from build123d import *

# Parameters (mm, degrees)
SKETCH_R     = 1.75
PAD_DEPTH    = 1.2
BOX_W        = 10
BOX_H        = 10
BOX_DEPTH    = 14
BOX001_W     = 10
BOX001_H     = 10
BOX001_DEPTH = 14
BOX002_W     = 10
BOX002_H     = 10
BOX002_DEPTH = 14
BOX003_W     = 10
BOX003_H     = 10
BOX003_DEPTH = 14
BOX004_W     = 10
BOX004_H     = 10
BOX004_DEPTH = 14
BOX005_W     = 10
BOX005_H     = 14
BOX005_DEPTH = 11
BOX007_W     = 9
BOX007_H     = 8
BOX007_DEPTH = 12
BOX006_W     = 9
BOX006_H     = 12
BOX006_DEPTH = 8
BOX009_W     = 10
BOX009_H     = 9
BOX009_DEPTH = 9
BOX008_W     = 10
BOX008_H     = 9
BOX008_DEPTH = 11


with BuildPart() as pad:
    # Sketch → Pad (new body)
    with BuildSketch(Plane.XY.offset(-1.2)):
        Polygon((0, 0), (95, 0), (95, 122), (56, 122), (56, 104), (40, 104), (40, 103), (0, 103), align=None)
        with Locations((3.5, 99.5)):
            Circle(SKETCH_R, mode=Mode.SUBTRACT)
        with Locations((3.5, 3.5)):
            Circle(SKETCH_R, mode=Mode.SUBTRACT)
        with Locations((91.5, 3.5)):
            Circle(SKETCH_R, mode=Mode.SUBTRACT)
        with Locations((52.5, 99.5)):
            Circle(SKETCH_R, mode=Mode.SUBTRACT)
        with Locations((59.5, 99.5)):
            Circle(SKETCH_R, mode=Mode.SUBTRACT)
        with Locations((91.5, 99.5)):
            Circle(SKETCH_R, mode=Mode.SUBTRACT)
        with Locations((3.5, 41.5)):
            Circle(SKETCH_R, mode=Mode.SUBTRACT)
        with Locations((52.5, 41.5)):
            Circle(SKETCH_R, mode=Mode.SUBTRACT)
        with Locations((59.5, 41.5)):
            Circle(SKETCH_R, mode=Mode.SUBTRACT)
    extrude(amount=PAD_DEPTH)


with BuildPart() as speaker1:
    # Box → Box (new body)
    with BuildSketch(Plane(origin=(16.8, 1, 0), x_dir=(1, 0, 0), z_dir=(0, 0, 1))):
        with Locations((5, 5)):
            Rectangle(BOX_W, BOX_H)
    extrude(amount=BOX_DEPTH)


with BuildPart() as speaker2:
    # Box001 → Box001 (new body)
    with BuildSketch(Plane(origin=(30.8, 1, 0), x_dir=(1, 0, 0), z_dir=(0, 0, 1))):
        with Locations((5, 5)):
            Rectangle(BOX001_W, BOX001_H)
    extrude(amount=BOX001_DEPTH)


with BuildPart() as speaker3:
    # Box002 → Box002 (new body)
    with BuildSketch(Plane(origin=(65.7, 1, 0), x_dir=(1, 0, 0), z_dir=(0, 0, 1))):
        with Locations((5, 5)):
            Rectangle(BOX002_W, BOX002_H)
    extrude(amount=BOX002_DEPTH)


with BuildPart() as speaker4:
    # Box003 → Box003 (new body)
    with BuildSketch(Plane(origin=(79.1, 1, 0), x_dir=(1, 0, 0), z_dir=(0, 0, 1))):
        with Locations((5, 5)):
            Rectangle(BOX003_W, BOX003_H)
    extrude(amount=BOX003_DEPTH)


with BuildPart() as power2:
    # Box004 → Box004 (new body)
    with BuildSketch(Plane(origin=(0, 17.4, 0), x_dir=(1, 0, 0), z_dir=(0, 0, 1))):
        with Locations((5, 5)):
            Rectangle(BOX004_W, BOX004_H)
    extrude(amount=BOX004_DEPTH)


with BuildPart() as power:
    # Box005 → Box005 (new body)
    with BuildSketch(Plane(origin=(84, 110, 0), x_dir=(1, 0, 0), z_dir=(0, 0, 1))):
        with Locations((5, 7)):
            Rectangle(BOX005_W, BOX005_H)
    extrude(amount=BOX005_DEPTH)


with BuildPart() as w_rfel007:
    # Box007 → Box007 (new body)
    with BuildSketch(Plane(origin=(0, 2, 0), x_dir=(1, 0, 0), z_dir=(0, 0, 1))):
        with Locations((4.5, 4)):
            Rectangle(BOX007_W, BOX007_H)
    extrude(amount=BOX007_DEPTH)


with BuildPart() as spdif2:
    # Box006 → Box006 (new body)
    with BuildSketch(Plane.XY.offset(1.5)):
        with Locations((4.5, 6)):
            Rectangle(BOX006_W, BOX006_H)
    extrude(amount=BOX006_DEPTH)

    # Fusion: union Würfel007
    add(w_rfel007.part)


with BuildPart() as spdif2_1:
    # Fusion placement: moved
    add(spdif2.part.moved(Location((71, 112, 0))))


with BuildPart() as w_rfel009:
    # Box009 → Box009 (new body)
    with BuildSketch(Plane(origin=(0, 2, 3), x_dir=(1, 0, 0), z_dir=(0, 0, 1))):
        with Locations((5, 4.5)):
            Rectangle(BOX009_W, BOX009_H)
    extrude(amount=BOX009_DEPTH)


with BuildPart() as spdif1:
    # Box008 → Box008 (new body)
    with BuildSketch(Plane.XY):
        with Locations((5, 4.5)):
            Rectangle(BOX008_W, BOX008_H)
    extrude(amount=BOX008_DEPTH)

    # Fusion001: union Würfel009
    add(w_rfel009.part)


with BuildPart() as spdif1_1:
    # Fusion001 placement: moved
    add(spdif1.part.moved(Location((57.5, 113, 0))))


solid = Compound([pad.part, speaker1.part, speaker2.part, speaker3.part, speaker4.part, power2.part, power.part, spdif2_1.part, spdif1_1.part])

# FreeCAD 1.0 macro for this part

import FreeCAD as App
import Part
import Sketcher

V = App.Vector
Q = App.Units.Quantity


def add_polygon(sketch, points):
    """Adds a closed chain of lines whose ends are joined by coincident constraints."""
    first, n = sketch.GeometryCount, len(points)
    for a, b in zip(points, points[1:] + points[:1]):
        sketch.addGeometry(Part.LineSegment(App.Vector(*a, 0), App.Vector(*b, 0)), False)
    for i in range(n):
        sketch.addConstraint(Sketcher.Constraint("Coincident", first + i, 2, first + (i + 1) % n, 1))

doc = App.newDocument("Part")
body = doc.addObject("PartDesign::Body", "Body")

# Sketch on XY plane
sketch1 = body.newObject("Sketcher::SketchObject", "Sketch")
sketch1.AttachmentSupport = (doc.getObject("XY_Plane"), [""])
sketch1.MapMode = "FlatFace"
sketch1.AttachmentOffset = App.Placement(V(0, 0, -1.2), App.Rotation())
add_polygon(sketch1, [(0, 0), (95, 0), (95, 122), (56, 122), (56, 104), (40, 104), (40, 103), (0, 103)])  # lines 0-7
sketch1.addGeometry(Part.Circle(V(3.5, 3.5, 0), V(0, 0, 1), 1.75), False)  # 8
sketch1.addGeometry(Part.Circle(V(3.5, 41.5, 0), V(0, 0, 1), 1.75), False)  # 9
sketch1.addGeometry(Part.Circle(V(91.5, 3.5, 0), V(0, 0, 1), 1.75), False)  # 10
sketch1.addGeometry(Part.Circle(V(52.5, 41.5, 0), V(0, 0, 1), 1.75), False)  # 11
sketch1.addGeometry(Part.Circle(V(59.5, 41.5, 0), V(0, 0, 1), 1.75), False)  # 12
sketch1.addGeometry(Part.Circle(V(3.5, 99.5, 0), V(0, 0, 1), 1.75), False)  # 13
sketch1.addGeometry(Part.Circle(V(52.5, 99.5, 0), V(0, 0, 1), 1.75), False)  # 14
sketch1.addGeometry(Part.Circle(V(59.5, 99.5, 0), V(0, 0, 1), 1.75), False)  # 15
sketch1.addGeometry(Part.Circle(V(91.5, 99.5, 0), V(0, 0, 1), 1.75), False)  # 16
sketch1.addConstraint([
    Sketcher.Constraint("Horizontal", 0),
    Sketcher.Constraint("Vertical", 1),
    Sketcher.Constraint("Horizontal", 2),
    Sketcher.Constraint("Vertical", 3),
    Sketcher.Constraint("Horizontal", 4),
    Sketcher.Constraint("Vertical", 5),
    Sketcher.Constraint("Horizontal", 6),
    Sketcher.Constraint("Vertical", 7),
    Sketcher.Constraint("Coincident", 7, 2, -1, 1),
    Sketcher.Constraint("Equal", 8, 9),
    Sketcher.Constraint("Equal", 9, 10),
    Sketcher.Constraint("Equal", 10, 11),
    Sketcher.Constraint("Equal", 11, 12),
    Sketcher.Constraint("Equal", 12, 13),
    Sketcher.Constraint("Equal", 13, 14),
    Sketcher.Constraint("Equal", 14, 15),
    Sketcher.Constraint("Equal", 15, 16),
    Sketcher.Constraint("Horizontal", 8, 3, 10, 3),
    Sketcher.Constraint("Horizontal", 9, 3, 11, 3),
    Sketcher.Constraint("Horizontal", 11, 3, 12, 3),
    Sketcher.Constraint("Horizontal", 13, 3, 14, 3),
    Sketcher.Constraint("Horizontal", 14, 3, 15, 3),
    Sketcher.Constraint("Horizontal", 15, 3, 16, 3),
    Sketcher.Constraint("Vertical", 8, 3, 9, 3),
    Sketcher.Constraint("Vertical", 9, 3, 13, 3),
    Sketcher.Constraint("Vertical", 11, 3, 14, 3),
    Sketcher.Constraint("Vertical", 12, 3, 15, 3),
    Sketcher.Constraint("Vertical", 10, 3, 16, 3),
    Sketcher.Constraint("Diameter", 8, Q("3.5 mm")),
    Sketcher.Constraint("DistanceX", 0, 1, 0, 2, Q("95 mm")),
    Sketcher.Constraint("DistanceX", 2, 2, 2, 1, Q("39 mm")),
    Sketcher.Constraint("DistanceX", 4, 2, 4, 1, Q("16 mm")),
    Sketcher.Constraint("DistanceY", 1, 1, 1, 2, Q("122 mm")),
    Sketcher.Constraint("DistanceY", 3, 2, 3, 1, Q("18 mm")),
    Sketcher.Constraint("DistanceY", 5, 2, 5, 1, Q("1 mm")),
    Sketcher.Constraint("DistanceY", 8, 3, 9, 3, Q("38 mm")),
    Sketcher.Constraint("DistanceX", 8, 3, 10, 3, Q("88 mm")),
    Sketcher.Constraint("DistanceX", 9, 3, 11, 3, Q("49 mm")),
    Sketcher.Constraint("DistanceX", 11, 3, 12, 3, Q("7 mm")),
    Sketcher.Constraint("DistanceY", 9, 3, 13, 3, Q("58 mm")),
    Sketcher.Constraint("DistanceX", -1, 1, 8, 3, Q("3.5 mm")),
    Sketcher.Constraint("DistanceY", -1, 1, 8, 3, Q("3.5 mm")),
])
pad1 = body.newObject("PartDesign::Pad", "Pad")
pad1.Profile = sketch1
pad1.Length = 1.2
body2 = doc.addObject("PartDesign::Body", "Body001")

# Sketch on XY plane
sketch2 = body2.newObject("Sketcher::SketchObject", "Sketch001")
sketch2.AttachmentSupport = (doc.getObject("XY_Plane001"), [""])
sketch2.MapMode = "FlatFace"
add_polygon(sketch2, [(16.8, 11), (16.8, 1), (26.8, 1), (26.8, 11)])  # lines 0-3
sketch2.addConstraint([
    Sketcher.Constraint("Vertical", 0),
    Sketcher.Constraint("Horizontal", 1),
    Sketcher.Constraint("Vertical", 2),
    Sketcher.Constraint("Horizontal", 3),
    Sketcher.Constraint("Equal", 3, 0),
    Sketcher.Constraint("DistanceX", 1, 1, 1, 2, Q("10 mm")),
    Sketcher.Constraint("DistanceY", -1, 1, 0, 2, Q("1 mm")),
    Sketcher.Constraint("DistanceX", -1, 1, 0, 2, Q("16.8 mm")),
])
pad2 = body2.newObject("PartDesign::Pad", "Pad001")
pad2.Profile = sketch2
pad2.Length = 14
body3 = doc.addObject("PartDesign::Body", "Body002")

# Sketch on XY plane
sketch3 = body3.newObject("Sketcher::SketchObject", "Sketch002")
sketch3.AttachmentSupport = (doc.getObject("XY_Plane002"), [""])
sketch3.MapMode = "FlatFace"
add_polygon(sketch3, [(30.8, 11), (30.8, 1), (40.8, 1), (40.8, 11)])  # lines 0-3
sketch3.addConstraint([
    Sketcher.Constraint("Vertical", 0),
    Sketcher.Constraint("Horizontal", 1),
    Sketcher.Constraint("Vertical", 2),
    Sketcher.Constraint("Horizontal", 3),
    Sketcher.Constraint("Equal", 3, 0),
    Sketcher.Constraint("DistanceX", 1, 1, 1, 2, Q("10 mm")),
    Sketcher.Constraint("DistanceY", -1, 1, 0, 2, Q("1 mm")),
    Sketcher.Constraint("DistanceX", -1, 1, 0, 2, Q("30.8 mm")),
])
pad3 = body3.newObject("PartDesign::Pad", "Pad002")
pad3.Profile = sketch3
pad3.Length = 14
body4 = doc.addObject("PartDesign::Body", "Body003")

# Sketch on XY plane
sketch4 = body4.newObject("Sketcher::SketchObject", "Sketch003")
sketch4.AttachmentSupport = (doc.getObject("XY_Plane003"), [""])
sketch4.MapMode = "FlatFace"
add_polygon(sketch4, [(65.7, 11), (65.7, 1), (75.7, 1), (75.7, 11)])  # lines 0-3
sketch4.addConstraint([
    Sketcher.Constraint("Vertical", 0),
    Sketcher.Constraint("Horizontal", 1),
    Sketcher.Constraint("Vertical", 2),
    Sketcher.Constraint("Horizontal", 3),
    Sketcher.Constraint("Equal", 3, 0),
    Sketcher.Constraint("DistanceX", 1, 1, 1, 2, Q("10 mm")),
    Sketcher.Constraint("DistanceY", -1, 1, 0, 2, Q("1 mm")),
    Sketcher.Constraint("DistanceX", -1, 1, 0, 2, Q("65.7 mm")),
])
pad4 = body4.newObject("PartDesign::Pad", "Pad003")
pad4.Profile = sketch4
pad4.Length = 14
body5 = doc.addObject("PartDesign::Body", "Body004")

# Sketch on XY plane
sketch5 = body5.newObject("Sketcher::SketchObject", "Sketch004")
sketch5.AttachmentSupport = (doc.getObject("XY_Plane004"), [""])
sketch5.MapMode = "FlatFace"
add_polygon(sketch5, [(79.1, 11), (79.1, 1), (89.1, 1), (89.1, 11)])  # lines 0-3
sketch5.addConstraint([
    Sketcher.Constraint("Vertical", 0),
    Sketcher.Constraint("Horizontal", 1),
    Sketcher.Constraint("Vertical", 2),
    Sketcher.Constraint("Horizontal", 3),
    Sketcher.Constraint("Equal", 3, 0),
    Sketcher.Constraint("DistanceX", 1, 1, 1, 2, Q("10 mm")),
    Sketcher.Constraint("DistanceY", -1, 1, 0, 2, Q("1 mm")),
    Sketcher.Constraint("DistanceX", -1, 1, 0, 2, Q("79.1 mm")),
])
pad5 = body5.newObject("PartDesign::Pad", "Pad004")
pad5.Profile = sketch5
pad5.Length = 14
body6 = doc.addObject("PartDesign::Body", "Body005")

# Sketch on XY plane
sketch6 = body6.newObject("Sketcher::SketchObject", "Sketch005")
sketch6.AttachmentSupport = (doc.getObject("XY_Plane005"), [""])
sketch6.MapMode = "FlatFace"
add_polygon(sketch6, [(0, 27.4), (0, 17.4), (10, 17.4), (10, 27.4)])  # lines 0-3
sketch6.addConstraint([
    Sketcher.Constraint("Vertical", 0),
    Sketcher.Constraint("Horizontal", 1),
    Sketcher.Constraint("Vertical", 2),
    Sketcher.Constraint("Horizontal", 3),
    Sketcher.Constraint("PointOnObject", 0, 2, -2),
    Sketcher.Constraint("Equal", 3, 0),
    Sketcher.Constraint("DistanceX", 1, 1, 1, 2, Q("10 mm")),
    Sketcher.Constraint("DistanceY", -1, 1, 0, 2, Q("17.4 mm")),
])
pad6 = body6.newObject("PartDesign::Pad", "Pad005")
pad6.Profile = sketch6
pad6.Length = 14
body7 = doc.addObject("PartDesign::Body", "Body006")

# Sketch on XY plane
sketch7 = body7.newObject("Sketcher::SketchObject", "Sketch006")
sketch7.AttachmentSupport = (doc.getObject("XY_Plane006"), [""])
sketch7.MapMode = "FlatFace"
add_polygon(sketch7, [(84, 124), (84, 110), (94, 110), (94, 124)])  # lines 0-3
sketch7.addConstraint([
    Sketcher.Constraint("Vertical", 0),
    Sketcher.Constraint("Horizontal", 1),
    Sketcher.Constraint("Vertical", 2),
    Sketcher.Constraint("Horizontal", 3),
    Sketcher.Constraint("DistanceX", 1, 1, 1, 2, Q("10 mm")),
    Sketcher.Constraint("DistanceY", 0, 2, 0, 1, Q("14 mm")),
    Sketcher.Constraint("DistanceX", -1, 1, 0, 2, Q("84 mm")),
    Sketcher.Constraint("DistanceY", -1, 1, 0, 2, Q("110 mm")),
])
pad7 = body7.newObject("PartDesign::Pad", "Pad006")
pad7.Profile = sketch7
pad7.Length = 11
body8 = doc.addObject("PartDesign::Body", "Body007")

# Sketch on XY plane
sketch8 = body8.newObject("Sketcher::SketchObject", "Sketch007")
sketch8.AttachmentSupport = (doc.getObject("XY_Plane007"), [""])
sketch8.MapMode = "FlatFace"
add_polygon(sketch8, [(0, 10), (0, 2), (9, 2), (9, 10)])  # lines 0-3
sketch8.addConstraint([
    Sketcher.Constraint("Vertical", 0),
    Sketcher.Constraint("Horizontal", 1),
    Sketcher.Constraint("Vertical", 2),
    Sketcher.Constraint("Horizontal", 3),
    Sketcher.Constraint("PointOnObject", 0, 2, -2),
    Sketcher.Constraint("DistanceX", 1, 1, 1, 2, Q("9 mm")),
    Sketcher.Constraint("DistanceY", 0, 2, 0, 1, Q("8 mm")),
    Sketcher.Constraint("DistanceY", -1, 1, 0, 2, Q("2 mm")),
])
pad8 = body8.newObject("PartDesign::Pad", "Pad007")
pad8.Profile = sketch8
pad8.Length = 12
body9 = doc.addObject("PartDesign::Body", "Body008")

# Sketch on XY plane
sketch9 = body9.newObject("Sketcher::SketchObject", "Sketch008")
sketch9.AttachmentSupport = (doc.getObject("XY_Plane008"), [""])
sketch9.MapMode = "FlatFace"
sketch9.AttachmentOffset = App.Placement(V(0, 0, 1.5), App.Rotation())
add_polygon(sketch9, [(0, 12), (0, 0), (9, 0), (9, 12)])  # lines 0-3
sketch9.addConstraint([
    Sketcher.Constraint("Vertical", 0),
    Sketcher.Constraint("Horizontal", 1),
    Sketcher.Constraint("Vertical", 2),
    Sketcher.Constraint("Horizontal", 3),
    Sketcher.Constraint("Coincident", 0, 2, -1, 1),
    Sketcher.Constraint("DistanceX", 1, 1, 1, 2, Q("9 mm")),
    Sketcher.Constraint("DistanceY", 0, 2, 0, 1, Q("12 mm")),
])
pad9 = body9.newObject("PartDesign::Pad", "Pad008")
pad9.Profile = sketch9
pad9.Length = 8
doc.recompute()

boolean = body9.newObject("PartDesign::Boolean", "Boolean")
boolean.Type = "Fuse"
boolean.addObjects([body8])
body10 = doc.addObject("PartDesign::Body", "Body009")
doc.recompute()

body9.Placement = App.Placement(V(71, 112, 0), App.Rotation(V(0, 0, 1), 0))
boolean2 = body10.newObject("PartDesign::Boolean", "Boolean001")
boolean2.Type = "Fuse"
boolean2.addObjects([body9])
body11 = doc.addObject("PartDesign::Body", "Body010")

# Sketch on XY plane
sketch10 = body11.newObject("Sketcher::SketchObject", "Sketch009")
sketch10.AttachmentSupport = (doc.getObject("XY_Plane010"), [""])
sketch10.MapMode = "FlatFace"
sketch10.AttachmentOffset = App.Placement(V(0, 0, 3), App.Rotation())
add_polygon(sketch10, [(0, 11), (0, 2), (10, 2), (10, 11)])  # lines 0-3
sketch10.addConstraint([
    Sketcher.Constraint("Vertical", 0),
    Sketcher.Constraint("Horizontal", 1),
    Sketcher.Constraint("Vertical", 2),
    Sketcher.Constraint("Horizontal", 3),
    Sketcher.Constraint("PointOnObject", 0, 2, -2),
    Sketcher.Constraint("DistanceX", 1, 1, 1, 2, Q("10 mm")),
    Sketcher.Constraint("DistanceY", 0, 2, 0, 1, Q("9 mm")),
    Sketcher.Constraint("DistanceY", -1, 1, 0, 2, Q("2 mm")),
])
pad10 = body11.newObject("PartDesign::Pad", "Pad009")
pad10.Profile = sketch10
pad10.Length = 9
body12 = doc.addObject("PartDesign::Body", "Body011")

# Sketch on XY plane
sketch11 = body12.newObject("Sketcher::SketchObject", "Sketch010")
sketch11.AttachmentSupport = (doc.getObject("XY_Plane011"), [""])
sketch11.MapMode = "FlatFace"
add_polygon(sketch11, [(0, 9), (0, 0), (10, 0), (10, 9)])  # lines 0-3
sketch11.addConstraint([
    Sketcher.Constraint("Vertical", 0),
    Sketcher.Constraint("Horizontal", 1),
    Sketcher.Constraint("Vertical", 2),
    Sketcher.Constraint("Horizontal", 3),
    Sketcher.Constraint("Coincident", 0, 2, -1, 1),
    Sketcher.Constraint("DistanceX", 1, 1, 1, 2, Q("10 mm")),
    Sketcher.Constraint("DistanceY", 0, 2, 0, 1, Q("9 mm")),
])
pad11 = body12.newObject("PartDesign::Pad", "Pad010")
pad11.Profile = sketch11
pad11.Length = 11
doc.recompute()

boolean3 = body12.newObject("PartDesign::Boolean", "Boolean002")
boolean3.Type = "Fuse"
boolean3.addObjects([body11])
body13 = doc.addObject("PartDesign::Body", "Body012")
doc.recompute()

body12.Placement = App.Placement(V(57.5, 113, 0), App.Rotation(V(0, 0, 1), 0))
boolean4 = body13.newObject("PartDesign::Boolean", "Boolean003")
boolean4.Type = "Fuse"
boolean4.addObjects([body12])

doc.recompute()
